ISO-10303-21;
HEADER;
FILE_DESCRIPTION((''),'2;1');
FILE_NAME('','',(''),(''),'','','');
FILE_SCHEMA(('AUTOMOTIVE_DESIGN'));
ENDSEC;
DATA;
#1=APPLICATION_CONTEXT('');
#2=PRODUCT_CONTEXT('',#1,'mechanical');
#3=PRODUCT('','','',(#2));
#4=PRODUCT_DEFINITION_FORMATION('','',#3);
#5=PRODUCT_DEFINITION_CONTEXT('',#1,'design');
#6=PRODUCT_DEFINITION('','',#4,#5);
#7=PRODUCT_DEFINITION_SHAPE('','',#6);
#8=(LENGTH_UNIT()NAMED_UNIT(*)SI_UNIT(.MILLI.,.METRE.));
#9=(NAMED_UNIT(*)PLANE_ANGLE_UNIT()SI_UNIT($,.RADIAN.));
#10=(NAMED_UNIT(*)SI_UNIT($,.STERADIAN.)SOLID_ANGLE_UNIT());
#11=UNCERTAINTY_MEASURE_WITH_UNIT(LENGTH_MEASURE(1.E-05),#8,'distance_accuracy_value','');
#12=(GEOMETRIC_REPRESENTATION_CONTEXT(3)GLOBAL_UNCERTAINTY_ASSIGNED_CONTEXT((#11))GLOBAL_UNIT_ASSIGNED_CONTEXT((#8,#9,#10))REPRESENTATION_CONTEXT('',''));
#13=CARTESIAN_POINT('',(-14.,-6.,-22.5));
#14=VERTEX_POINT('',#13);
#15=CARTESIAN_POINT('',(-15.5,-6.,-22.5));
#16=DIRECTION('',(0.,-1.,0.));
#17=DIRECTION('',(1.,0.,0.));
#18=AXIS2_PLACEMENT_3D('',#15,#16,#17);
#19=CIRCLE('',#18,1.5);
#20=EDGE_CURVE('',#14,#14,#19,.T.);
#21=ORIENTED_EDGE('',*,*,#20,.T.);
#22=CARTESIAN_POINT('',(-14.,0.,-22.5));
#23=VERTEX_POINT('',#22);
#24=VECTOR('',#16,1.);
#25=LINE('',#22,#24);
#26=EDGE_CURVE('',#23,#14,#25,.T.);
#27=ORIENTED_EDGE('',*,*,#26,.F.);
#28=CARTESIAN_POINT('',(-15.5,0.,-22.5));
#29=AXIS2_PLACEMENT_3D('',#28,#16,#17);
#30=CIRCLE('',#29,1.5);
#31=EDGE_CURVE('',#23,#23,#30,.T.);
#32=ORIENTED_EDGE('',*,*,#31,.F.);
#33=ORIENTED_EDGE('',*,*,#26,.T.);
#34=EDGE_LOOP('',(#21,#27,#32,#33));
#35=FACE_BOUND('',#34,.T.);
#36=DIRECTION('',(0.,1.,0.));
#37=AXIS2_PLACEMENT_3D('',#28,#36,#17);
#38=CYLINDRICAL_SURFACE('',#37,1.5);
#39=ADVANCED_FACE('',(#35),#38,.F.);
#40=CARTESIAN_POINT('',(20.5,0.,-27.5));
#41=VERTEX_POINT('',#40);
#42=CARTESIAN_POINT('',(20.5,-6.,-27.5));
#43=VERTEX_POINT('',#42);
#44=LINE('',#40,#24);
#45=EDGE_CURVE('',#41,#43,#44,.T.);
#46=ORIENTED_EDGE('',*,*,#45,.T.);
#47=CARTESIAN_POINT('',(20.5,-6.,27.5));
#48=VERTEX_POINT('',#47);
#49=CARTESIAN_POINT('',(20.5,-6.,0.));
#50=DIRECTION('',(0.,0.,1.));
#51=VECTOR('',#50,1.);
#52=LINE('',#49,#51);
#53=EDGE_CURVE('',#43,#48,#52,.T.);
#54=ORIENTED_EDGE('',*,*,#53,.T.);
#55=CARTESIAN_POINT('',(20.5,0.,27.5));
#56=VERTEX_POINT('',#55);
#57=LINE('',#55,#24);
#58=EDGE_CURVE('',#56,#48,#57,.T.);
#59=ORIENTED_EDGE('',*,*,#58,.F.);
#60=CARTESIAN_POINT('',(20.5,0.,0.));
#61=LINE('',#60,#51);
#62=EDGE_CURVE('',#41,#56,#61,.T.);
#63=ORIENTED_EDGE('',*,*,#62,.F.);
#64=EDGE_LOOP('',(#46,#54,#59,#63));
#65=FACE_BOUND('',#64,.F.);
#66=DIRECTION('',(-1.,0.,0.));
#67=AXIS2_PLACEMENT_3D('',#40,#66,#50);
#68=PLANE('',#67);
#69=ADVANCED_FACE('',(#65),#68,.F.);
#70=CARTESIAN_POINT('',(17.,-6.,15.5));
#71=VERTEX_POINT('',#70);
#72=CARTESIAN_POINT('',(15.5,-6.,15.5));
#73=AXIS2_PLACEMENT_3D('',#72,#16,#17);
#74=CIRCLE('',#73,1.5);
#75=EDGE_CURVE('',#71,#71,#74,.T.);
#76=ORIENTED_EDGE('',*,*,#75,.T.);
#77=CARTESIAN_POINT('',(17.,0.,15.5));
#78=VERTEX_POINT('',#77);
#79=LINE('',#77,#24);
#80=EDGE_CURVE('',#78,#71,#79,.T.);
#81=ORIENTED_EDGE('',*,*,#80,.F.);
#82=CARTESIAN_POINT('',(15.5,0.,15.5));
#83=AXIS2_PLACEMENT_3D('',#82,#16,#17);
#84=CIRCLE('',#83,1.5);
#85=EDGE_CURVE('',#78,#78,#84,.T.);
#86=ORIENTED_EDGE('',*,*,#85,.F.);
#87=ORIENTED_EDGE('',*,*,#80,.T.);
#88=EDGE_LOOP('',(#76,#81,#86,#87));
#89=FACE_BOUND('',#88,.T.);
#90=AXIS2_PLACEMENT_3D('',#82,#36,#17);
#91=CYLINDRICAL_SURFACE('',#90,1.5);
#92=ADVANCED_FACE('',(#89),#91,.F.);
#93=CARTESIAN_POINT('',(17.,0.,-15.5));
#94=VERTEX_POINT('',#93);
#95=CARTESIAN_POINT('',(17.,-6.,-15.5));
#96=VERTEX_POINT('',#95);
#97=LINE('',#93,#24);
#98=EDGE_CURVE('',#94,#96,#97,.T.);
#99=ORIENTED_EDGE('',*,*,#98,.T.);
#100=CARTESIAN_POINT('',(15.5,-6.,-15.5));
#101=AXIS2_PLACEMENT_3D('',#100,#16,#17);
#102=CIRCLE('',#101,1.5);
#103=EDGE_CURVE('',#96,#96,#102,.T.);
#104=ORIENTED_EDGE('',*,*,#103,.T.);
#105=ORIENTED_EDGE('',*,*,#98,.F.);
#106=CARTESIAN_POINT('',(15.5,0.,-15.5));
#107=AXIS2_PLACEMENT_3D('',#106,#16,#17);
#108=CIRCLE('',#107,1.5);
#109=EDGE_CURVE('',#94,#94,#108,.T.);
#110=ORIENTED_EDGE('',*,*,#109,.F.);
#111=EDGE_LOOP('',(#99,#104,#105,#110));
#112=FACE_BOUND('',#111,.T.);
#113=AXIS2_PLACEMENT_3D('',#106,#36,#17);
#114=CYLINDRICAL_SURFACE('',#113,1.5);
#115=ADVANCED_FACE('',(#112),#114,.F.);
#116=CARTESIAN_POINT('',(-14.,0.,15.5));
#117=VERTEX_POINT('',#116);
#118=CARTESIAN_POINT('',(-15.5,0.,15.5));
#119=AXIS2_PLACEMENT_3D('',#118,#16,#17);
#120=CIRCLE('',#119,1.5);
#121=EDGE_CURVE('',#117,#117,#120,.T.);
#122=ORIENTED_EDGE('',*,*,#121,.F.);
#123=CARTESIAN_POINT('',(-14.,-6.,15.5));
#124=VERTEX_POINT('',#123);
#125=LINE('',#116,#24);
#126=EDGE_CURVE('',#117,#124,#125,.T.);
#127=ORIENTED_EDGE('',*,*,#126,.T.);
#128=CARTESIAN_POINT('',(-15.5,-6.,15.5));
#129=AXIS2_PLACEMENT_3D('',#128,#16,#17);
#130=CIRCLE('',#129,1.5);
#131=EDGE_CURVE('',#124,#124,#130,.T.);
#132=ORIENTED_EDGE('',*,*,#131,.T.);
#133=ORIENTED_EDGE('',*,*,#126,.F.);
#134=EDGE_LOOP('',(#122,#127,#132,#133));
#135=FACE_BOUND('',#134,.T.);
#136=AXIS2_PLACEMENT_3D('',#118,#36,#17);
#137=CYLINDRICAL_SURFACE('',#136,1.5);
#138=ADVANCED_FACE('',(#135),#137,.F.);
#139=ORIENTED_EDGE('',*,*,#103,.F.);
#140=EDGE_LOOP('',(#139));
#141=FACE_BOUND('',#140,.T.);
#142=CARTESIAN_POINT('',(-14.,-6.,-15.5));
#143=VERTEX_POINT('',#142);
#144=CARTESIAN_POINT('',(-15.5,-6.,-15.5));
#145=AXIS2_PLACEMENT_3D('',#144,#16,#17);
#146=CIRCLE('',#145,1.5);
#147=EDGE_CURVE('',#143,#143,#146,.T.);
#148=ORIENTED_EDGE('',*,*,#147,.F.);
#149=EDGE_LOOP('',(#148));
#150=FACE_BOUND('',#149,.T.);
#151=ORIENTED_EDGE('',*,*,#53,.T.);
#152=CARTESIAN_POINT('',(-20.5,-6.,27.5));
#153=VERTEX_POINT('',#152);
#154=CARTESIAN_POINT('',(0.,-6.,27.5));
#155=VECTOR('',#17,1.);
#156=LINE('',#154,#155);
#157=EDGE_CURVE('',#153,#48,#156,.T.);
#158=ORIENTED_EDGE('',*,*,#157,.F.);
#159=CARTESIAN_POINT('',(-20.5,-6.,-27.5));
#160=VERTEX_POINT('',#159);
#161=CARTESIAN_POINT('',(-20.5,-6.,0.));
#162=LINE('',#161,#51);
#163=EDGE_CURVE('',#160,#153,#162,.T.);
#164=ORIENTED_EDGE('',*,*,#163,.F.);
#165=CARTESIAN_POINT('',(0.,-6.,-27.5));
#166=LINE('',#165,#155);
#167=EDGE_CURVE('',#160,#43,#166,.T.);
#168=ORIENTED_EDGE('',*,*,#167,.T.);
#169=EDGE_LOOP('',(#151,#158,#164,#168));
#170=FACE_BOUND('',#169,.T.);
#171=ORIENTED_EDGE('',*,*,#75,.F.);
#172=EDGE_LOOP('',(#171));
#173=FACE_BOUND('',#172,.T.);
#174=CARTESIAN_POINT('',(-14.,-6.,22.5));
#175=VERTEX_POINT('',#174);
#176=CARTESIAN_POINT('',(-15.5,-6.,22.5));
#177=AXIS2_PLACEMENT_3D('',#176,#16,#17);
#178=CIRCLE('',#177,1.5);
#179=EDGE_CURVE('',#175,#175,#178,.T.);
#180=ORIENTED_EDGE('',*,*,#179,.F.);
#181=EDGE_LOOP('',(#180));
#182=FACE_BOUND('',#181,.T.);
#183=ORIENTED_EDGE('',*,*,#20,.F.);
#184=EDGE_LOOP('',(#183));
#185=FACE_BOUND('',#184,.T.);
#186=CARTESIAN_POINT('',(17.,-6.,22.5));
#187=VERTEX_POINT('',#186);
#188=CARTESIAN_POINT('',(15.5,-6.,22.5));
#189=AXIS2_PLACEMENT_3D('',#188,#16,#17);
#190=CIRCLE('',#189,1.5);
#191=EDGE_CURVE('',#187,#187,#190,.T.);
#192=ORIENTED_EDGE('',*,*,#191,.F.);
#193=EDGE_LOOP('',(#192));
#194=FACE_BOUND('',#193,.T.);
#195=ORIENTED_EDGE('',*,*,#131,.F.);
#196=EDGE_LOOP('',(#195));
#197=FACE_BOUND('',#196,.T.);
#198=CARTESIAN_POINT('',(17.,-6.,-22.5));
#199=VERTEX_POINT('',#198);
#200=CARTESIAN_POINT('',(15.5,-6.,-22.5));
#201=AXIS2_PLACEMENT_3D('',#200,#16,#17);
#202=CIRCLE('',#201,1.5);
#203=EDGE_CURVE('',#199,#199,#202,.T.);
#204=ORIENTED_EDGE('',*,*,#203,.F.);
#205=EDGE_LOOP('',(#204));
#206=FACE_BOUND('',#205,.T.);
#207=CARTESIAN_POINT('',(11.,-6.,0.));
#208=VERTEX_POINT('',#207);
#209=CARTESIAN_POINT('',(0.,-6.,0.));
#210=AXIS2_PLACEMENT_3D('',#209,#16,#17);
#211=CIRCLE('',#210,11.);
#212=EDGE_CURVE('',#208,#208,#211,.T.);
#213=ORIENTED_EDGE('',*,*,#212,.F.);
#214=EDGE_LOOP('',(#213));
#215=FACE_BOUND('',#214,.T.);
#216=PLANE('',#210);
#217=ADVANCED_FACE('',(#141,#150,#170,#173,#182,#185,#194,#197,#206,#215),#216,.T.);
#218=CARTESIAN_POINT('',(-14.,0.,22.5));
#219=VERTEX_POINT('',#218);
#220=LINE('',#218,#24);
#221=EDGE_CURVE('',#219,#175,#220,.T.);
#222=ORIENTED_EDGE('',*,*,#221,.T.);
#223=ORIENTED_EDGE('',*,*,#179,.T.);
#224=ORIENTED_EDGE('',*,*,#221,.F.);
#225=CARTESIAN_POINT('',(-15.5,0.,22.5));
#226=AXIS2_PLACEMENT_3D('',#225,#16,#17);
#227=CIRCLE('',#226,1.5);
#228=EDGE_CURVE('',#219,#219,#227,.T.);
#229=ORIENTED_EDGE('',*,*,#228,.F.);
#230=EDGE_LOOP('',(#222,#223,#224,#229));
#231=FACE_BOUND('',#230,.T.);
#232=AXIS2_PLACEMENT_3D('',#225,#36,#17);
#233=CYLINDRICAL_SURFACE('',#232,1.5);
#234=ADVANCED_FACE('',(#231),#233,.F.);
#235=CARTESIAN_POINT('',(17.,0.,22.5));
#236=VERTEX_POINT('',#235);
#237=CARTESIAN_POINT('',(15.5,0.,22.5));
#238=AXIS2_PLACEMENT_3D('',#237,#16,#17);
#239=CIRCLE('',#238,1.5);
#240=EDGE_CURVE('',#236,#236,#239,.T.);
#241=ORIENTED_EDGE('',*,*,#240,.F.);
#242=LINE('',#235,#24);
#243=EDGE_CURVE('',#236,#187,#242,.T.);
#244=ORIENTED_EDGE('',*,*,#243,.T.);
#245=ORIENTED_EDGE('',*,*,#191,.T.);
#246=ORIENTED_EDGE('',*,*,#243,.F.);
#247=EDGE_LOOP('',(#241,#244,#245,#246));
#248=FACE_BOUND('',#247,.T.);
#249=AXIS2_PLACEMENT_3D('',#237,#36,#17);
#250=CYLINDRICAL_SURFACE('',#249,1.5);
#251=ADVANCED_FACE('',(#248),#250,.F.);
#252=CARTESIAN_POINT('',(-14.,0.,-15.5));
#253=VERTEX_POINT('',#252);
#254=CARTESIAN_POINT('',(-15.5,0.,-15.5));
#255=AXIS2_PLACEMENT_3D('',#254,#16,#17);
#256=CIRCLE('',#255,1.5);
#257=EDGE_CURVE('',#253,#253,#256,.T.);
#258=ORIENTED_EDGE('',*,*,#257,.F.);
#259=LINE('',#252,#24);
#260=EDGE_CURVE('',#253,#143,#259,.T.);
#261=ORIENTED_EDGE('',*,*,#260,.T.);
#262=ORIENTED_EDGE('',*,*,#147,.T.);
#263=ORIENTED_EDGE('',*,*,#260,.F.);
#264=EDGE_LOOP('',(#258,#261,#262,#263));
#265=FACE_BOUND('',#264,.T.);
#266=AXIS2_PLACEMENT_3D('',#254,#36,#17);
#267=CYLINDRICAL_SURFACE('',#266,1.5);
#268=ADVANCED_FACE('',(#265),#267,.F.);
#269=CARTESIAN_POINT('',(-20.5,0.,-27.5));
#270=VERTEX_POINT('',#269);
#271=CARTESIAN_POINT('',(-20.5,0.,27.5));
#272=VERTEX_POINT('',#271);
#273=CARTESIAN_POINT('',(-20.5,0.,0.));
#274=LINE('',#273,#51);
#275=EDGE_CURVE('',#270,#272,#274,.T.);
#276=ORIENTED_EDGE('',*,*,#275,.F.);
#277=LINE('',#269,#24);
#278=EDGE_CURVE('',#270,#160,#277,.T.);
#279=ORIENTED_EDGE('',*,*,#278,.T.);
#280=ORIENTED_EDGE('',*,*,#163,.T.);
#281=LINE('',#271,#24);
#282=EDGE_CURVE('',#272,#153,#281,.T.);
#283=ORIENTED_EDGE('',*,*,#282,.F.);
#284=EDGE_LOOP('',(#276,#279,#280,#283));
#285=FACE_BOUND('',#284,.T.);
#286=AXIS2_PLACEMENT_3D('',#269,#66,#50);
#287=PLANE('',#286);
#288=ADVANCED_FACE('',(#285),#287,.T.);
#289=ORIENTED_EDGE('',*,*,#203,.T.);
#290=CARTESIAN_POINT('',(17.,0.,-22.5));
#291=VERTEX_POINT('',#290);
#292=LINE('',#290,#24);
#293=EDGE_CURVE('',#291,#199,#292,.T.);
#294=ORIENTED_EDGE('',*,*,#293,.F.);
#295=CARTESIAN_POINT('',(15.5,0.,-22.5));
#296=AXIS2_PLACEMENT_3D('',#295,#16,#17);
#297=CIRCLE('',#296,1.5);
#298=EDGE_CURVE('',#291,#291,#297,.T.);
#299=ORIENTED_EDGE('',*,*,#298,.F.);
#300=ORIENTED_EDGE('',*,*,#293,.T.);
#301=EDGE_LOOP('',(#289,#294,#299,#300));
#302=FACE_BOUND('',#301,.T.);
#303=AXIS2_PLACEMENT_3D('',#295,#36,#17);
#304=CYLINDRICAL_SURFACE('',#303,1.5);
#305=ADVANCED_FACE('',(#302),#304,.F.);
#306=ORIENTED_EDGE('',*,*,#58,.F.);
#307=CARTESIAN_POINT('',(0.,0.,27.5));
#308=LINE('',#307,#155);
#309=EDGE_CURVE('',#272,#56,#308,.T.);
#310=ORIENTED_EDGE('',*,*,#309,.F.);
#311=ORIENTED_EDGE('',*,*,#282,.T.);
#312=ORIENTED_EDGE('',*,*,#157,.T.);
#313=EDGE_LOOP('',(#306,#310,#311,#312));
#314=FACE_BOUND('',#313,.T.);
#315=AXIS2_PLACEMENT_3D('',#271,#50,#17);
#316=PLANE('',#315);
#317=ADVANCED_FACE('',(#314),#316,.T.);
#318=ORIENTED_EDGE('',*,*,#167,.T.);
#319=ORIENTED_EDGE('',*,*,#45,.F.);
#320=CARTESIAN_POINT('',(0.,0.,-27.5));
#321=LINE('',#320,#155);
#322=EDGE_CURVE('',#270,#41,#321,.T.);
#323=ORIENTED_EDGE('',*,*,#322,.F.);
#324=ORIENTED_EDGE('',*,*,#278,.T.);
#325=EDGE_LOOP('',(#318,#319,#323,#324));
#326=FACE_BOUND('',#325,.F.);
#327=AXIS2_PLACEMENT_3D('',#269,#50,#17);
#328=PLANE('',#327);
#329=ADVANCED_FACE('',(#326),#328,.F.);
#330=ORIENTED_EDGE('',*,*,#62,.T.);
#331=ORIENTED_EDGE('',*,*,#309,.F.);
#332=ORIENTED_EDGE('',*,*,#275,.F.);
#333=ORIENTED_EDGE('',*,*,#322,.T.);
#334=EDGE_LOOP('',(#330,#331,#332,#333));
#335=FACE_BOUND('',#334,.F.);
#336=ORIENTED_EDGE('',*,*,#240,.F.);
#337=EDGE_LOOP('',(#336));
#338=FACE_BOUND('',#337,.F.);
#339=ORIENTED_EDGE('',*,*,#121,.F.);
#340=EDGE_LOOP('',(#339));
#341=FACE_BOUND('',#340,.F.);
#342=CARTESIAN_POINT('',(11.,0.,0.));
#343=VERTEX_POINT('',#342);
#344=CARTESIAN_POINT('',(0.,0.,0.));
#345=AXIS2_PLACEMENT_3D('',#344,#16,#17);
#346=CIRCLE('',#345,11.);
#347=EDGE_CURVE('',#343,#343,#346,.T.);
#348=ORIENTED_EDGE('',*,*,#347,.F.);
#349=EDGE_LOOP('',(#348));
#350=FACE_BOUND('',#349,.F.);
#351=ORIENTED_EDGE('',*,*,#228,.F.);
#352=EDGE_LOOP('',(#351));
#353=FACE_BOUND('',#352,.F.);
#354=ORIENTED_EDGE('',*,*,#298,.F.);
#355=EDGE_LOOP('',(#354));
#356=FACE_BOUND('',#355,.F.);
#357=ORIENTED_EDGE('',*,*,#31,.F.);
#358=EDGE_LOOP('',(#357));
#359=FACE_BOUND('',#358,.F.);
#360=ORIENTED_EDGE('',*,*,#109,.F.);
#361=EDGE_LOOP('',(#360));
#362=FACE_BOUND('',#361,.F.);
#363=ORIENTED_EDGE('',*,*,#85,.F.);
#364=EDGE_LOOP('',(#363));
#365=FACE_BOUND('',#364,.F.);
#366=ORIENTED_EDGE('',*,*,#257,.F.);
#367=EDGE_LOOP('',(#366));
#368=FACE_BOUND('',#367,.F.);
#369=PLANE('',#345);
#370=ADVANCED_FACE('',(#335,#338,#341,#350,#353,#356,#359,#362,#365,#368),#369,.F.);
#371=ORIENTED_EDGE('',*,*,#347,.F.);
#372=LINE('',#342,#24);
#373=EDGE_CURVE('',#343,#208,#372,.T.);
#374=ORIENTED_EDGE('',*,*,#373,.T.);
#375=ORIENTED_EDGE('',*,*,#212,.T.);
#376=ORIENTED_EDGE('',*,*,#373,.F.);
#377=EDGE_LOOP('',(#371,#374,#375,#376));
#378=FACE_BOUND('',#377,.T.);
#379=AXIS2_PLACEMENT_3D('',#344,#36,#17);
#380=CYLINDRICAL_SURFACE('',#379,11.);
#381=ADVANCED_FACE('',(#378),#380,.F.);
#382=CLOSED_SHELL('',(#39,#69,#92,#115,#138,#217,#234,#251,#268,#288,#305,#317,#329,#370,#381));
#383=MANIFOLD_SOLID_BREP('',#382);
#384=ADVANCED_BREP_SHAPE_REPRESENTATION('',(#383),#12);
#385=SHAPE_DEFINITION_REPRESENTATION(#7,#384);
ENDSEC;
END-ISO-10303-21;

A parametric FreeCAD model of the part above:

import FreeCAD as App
import Part
import Sketcher

doc = App.newDocument("Part")
body = doc.addObject("PartDesign::Body", "Body")

# Sketch on XZ plane
sketch1 = body.newObject("Sketcher::SketchObject", "Sketch")
sketch1.AttachmentSupport = (doc.getObject("XZ_Plane"), [""])
sketch1.MapMode = "FlatFace"
sketch1.addGeometry([
    Part.LineSegment(App.Vector(-20.5, 27.5, 0), App.Vector(-20.5, -27.5, 0)),  # 0
    Part.LineSegment(App.Vector(-20.5, -27.5, 0), App.Vector(20.5, -27.5, 0)),  # 1
    Part.LineSegment(App.Vector(20.5, -27.5, 0), App.Vector(20.5, 27.5, 0)),  # 2
    Part.LineSegment(App.Vector(20.5, 27.5, 0), App.Vector(-20.5, 27.5, 0)),  # 3
    Part.Circle(App.Vector(-15.5, -22.5, 0), App.Vector(0, 0, 1), 1.5),  # 4
    Part.Circle(App.Vector(-15.5, -15.5, 0), App.Vector(0, 0, 1), 1.5),  # 5
    Part.Circle(App.Vector(15.5, -22.5, 0), App.Vector(0, 0, 1), 1.5),  # 6
    Part.Circle(App.Vector(15.5, -15.5, 0), App.Vector(0, 0, 1), 1.5),  # 7
    Part.Circle(App.Vector(-15.5, 15.5, 0), App.Vector(0, 0, 1), 1.5),  # 8
    Part.Circle(App.Vector(-15.5, 22.5, 0), App.Vector(0, 0, 1), 1.5),  # 9
    Part.Circle(App.Vector(0, 0, 0), App.Vector(0, 0, 1), 11),  # 10
    Part.Circle(App.Vector(15.5, 15.5, 0), App.Vector(0, 0, 1), 1.5),  # 11
    Part.Circle(App.Vector(15.5, 22.5, 0), App.Vector(0, 0, 1), 1.5),  # 12
], False)
sketch1.addConstraint([
    Sketcher.Constraint("Coincident", 0, 2, 1, 1),
    Sketcher.Constraint("Coincident", 1, 2, 2, 1),
    Sketcher.Constraint("Coincident", 2, 2, 3, 1),
    Sketcher.Constraint("Coincident", 3, 2, 0, 1),
    Sketcher.Constraint("Vertical", 0),
    Sketcher.Constraint("Horizontal", 1),
    Sketcher.Constraint("Vertical", 2),
    Sketcher.Constraint("Horizontal", 3),
    Sketcher.Constraint("Coincident", 10, 3, -1, 1),
    Sketcher.Constraint("Equal", 4, 5),
    Sketcher.Constraint("Equal", 5, 6),
    Sketcher.Constraint("Equal", 6, 7),
    Sketcher.Constraint("Equal", 7, 8),
    Sketcher.Constraint("Equal", 8, 9),
    Sketcher.Constraint("Equal", 9, 11),
    Sketcher.Constraint("Equal", 11, 12),
    Sketcher.Constraint("Symmetric", 7, 3, 8, 3, -1, 1),
    Sketcher.Constraint("Symmetric", 6, 3, 9, 3, -1, 1),
    Sketcher.Constraint("Symmetric", 5, 3, 11, 3, -1, 1),
    Sketcher.Constraint("Symmetric", 4, 3, 12, 3, -1, 1),
    Sketcher.Constraint("Symmetric", 0, 2, 2, 2, -1, 1),
    Sketcher.Constraint("Symmetric", 4, 3, 6, 3, -2),
    Sketcher.Constraint("Symmetric", 5, 3, 7, 3, -2),
    Sketcher.Constraint("Vertical", 4, 3, 5, 3),
    Sketcher.Constraint("Diameter", 4, 3.0),
    Sketcher.Constraint("Diameter", 10, 22.0),
    Sketcher.Constraint("DistanceX", 1, 1, 1, 2, 41.0),
    Sketcher.Constraint("DistanceY", 0, 2, 0, 1, 55.0),
    Sketcher.Constraint("DistanceY", 4, 3, 5, 3, 7.0),
    Sketcher.Constraint("DistanceX", 4, 3, 6, 3, 31.0),
    Sketcher.Constraint("DistanceY", 5, 3, 8, 3, 31.0),
])
pad1 = body.newObject("PartDesign::Pad", "Pad")
pad1.Profile = sketch1
pad1.Length = 6

doc.recompute()
